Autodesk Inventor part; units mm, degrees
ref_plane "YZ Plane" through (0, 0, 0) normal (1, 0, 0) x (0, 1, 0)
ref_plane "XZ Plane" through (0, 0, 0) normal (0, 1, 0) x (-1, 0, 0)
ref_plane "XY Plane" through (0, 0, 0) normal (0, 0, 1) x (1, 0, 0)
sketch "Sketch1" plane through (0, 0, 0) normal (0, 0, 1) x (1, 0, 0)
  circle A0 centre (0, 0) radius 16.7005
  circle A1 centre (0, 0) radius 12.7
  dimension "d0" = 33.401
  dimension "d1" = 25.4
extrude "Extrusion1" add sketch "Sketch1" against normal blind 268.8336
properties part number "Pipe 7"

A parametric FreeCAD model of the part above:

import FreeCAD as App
import Part
import Sketcher

V = App.Vector
Q = App.Units.Quantity

doc = App.newDocument("Part")
body = doc.addObject("PartDesign::Body", "Body")

sketch1 = body.newObject("Sketcher::SketchObject", "Sketch")
sketch1.AttachmentSupport = (doc.getObject("XY_Plane"), [""])
sketch1.MapMode = "FlatFace"
sketch1.addGeometry(Part.Circle(V(0, 0, 0), V(0, 0, 1), 17), False)
sketch1.addGeometry(Part.Circle(V(0, 0, 0), V(0, 0, 1), 13), False)
sketch1.addConstraint(Sketcher.Constraint("Coincident", 0, 3, -1, 1))
sketch1.addConstraint(Sketcher.Constraint("Coincident", 1, 3, -1, 1))
sketch1.addConstraint(Sketcher.Constraint("Diameter", 1, Q("1 in")))
sketch1.addConstraint(Sketcher.Constraint("Diameter", 0, Q("1.315 in")))
pad1 = body.newObject("PartDesign::Pad", "Pad")
pad1.Profile = sketch1
pad1.Length = Q("10.584 in")
pad1.Reversed = True

doc.recompute()
